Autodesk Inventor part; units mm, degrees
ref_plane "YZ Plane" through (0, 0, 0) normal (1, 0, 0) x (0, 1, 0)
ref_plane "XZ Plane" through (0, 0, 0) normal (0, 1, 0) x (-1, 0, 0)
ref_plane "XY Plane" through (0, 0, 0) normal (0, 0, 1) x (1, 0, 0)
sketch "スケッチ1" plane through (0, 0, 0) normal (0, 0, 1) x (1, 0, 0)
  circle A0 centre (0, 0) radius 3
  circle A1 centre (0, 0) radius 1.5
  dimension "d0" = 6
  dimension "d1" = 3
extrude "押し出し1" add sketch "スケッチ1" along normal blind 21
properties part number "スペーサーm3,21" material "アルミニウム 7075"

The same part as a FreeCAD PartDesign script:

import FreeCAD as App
import Part
import Sketcher
Q = App.Units.Quantity

doc = App.newDocument("Part")
params = doc.addObject("Spreadsheet::Sheet", "Params")
for row, (alias, value) in enumerate([
    ("sketch1_diameter", "6 mm"),
    ("sketch1_diameter2", "3 mm"),
    ("pad1_length", "21 mm"),
], start=1):
    params.set(f"A{row}", alias)
    params.set(f"B{row}", "=" + value)
    params.setAlias(f"B{row}", alias)

body = doc.addObject("PartDesign::Body", "Body")

# Sketch on XY plane
sketch1 = body.newObject("Sketcher::SketchObject", "Sketch")
sketch1.AttachmentSupport = (doc.getObject("XY_Plane"), [""])
sketch1.MapMode = "FlatFace"
sketch1.addGeometry([
    Part.Circle(App.Vector(0, 0, 0), App.Vector(0, 0, 1), 3),
    Part.Circle(App.Vector(0, 0, 0), App.Vector(0, 0, 1), 1.5),
], False)
sketch1.addConstraint([
    Sketcher.Constraint("Coincident", 0, 3, -1, 1),
    Sketcher.Constraint("Coincident", 1, 3, -1, 1),
    Sketcher.Constraint("Diameter", 0, Q("6 mm")),
    Sketcher.Constraint("Diameter", 1, Q("3 mm")),
])
sketch1.setExpression("Constraints[2]", "Params.sketch1_diameter")
sketch1.setExpression("Constraints[3]", "Params.sketch1_diameter2")
pad1 = body.newObject("PartDesign::Pad", "Pad")
pad1.Profile = sketch1
pad1.setExpression("Length", "Params.pad1_length")

doc.recompute()
